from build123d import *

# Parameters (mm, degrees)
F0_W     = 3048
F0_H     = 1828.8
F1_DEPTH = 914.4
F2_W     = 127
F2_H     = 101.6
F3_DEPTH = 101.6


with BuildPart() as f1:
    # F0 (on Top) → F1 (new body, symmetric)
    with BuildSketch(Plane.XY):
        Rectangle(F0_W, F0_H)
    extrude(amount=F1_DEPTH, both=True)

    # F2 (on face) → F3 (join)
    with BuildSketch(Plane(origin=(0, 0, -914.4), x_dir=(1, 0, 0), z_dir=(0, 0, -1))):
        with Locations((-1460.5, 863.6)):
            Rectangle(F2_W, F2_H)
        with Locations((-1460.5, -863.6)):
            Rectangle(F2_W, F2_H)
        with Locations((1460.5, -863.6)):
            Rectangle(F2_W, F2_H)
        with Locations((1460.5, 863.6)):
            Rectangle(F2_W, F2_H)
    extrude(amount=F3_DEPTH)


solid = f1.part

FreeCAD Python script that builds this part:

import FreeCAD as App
import Part
import Sketcher

V = App.Vector
Q = App.Units.Quantity


def add_polygon(sketch, points):
    """Adds a closed chain of lines whose ends are joined by coincident constraints."""
    first, n = sketch.GeometryCount, len(points)
    for a, b in zip(points, points[1:] + points[:1]):
        sketch.addGeometry(Part.LineSegment(App.Vector(*a, 0), App.Vector(*b, 0)), False)
    for i in range(n):
        sketch.addConstraint(Sketcher.Constraint("Coincident", first + i, 2, first + (i + 1) % n, 1))

doc = App.newDocument("Part")
body = doc.addObject("PartDesign::Body", "Body")

# Sketch on XY plane
sketch1 = doc.addObject("Sketcher::SketchObject", "Sketch")
body.addObject(sketch1)
sketch1.AttachmentSupport = (doc.XY_Plane, [""])
sketch1.MapMode = "FlatFace"
add_polygon(sketch1, [(-1524, 914), (-1524, -914), (1524, -914), (1524, 914)])  # lines 0-3
sketch1.addConstraint([
    Sketcher.Constraint("Vertical", 0),
    Sketcher.Constraint("Horizontal", 1),
    Sketcher.Constraint("Vertical", 2),
    Sketcher.Constraint("Horizontal", 3),
    Sketcher.Constraint("Symmetric", 0, 2, 2, 2, -1, 1),
    Sketcher.Constraint("DistanceX", 1, 1, 1, 2, Q("120 in")),
    Sketcher.Constraint("DistanceY", 0, 2, 0, 1, Q("72 in")),
])
pad1 = doc.addObject("PartDesign::Pad", "Pad")
body.addObject(pad1)
pad1.Profile = sketch1
pad1.Length = Q("72 in")
pad1.Midplane = True

# Sketch on XY plane
sketch2 = doc.addObject("Sketcher::SketchObject", "Sketch001")
body.addObject(sketch2)
sketch2.AttachmentSupport = (doc.XY_Plane, [""])
sketch2.MapMode = "FlatFace"
sketch2.AttachmentOffset = App.Placement(V(0, 0, -36 * 25.4), App.Rotation())
add_polygon(sketch2, [(-1524, -914), (-1524, -813), (-1397, -813), (-1397, -914)])  # lines 0-3
add_polygon(sketch2, [(-1524, 813), (-1524, 914), (-1397, 914), (-1397, 813)])  # lines 4-7
add_polygon(sketch2, [(1397, 813), (1397, 914), (1524, 914), (1524, 813)])  # lines 8-11
add_polygon(sketch2, [(1397, -914), (1397, -813), (1524, -813), (1524, -914)])  # lines 12-15
sketch2.addConstraint([
    Sketcher.Constraint("Vertical", 0),
    Sketcher.Constraint("Horizontal", 1),
    Sketcher.Constraint("Vertical", 2),
    Sketcher.Constraint("Horizontal", 3),
    Sketcher.Constraint("Vertical", 4),
    Sketcher.Constraint("Horizontal", 5),
    Sketcher.Constraint("Vertical", 6),
    Sketcher.Constraint("Horizontal", 7),
    Sketcher.Constraint("Vertical", 8),
    Sketcher.Constraint("Horizontal", 9),
    Sketcher.Constraint("Vertical", 10),
    Sketcher.Constraint("Horizontal", 11),
    Sketcher.Constraint("Vertical", 12),
    Sketcher.Constraint("Horizontal", 13),
    Sketcher.Constraint("Vertical", 14),
    Sketcher.Constraint("Horizontal", 15),
    Sketcher.Constraint("Symmetric", 2, 2, 8, 2, -1, 1),
    Sketcher.Constraint("Symmetric", 0, 2, 10, 2, -1, 1),
    Sketcher.Constraint("Symmetric", 6, 2, 12, 2, -1, 1),
    Sketcher.Constraint("Symmetric", 4, 2, 14, 2, -1, 1),
    Sketcher.Constraint("Symmetric", 5, 2, 8, 2, -2),
    Sketcher.Constraint("Symmetric", 7, 2, 10, 2, -2),
    Sketcher.Constraint("DistanceX", 1, 1, 1, 2, Q("5 in")),
    Sketcher.Constraint("DistanceY", 0, 1, 0, 2, Q("4 in")),
    Sketcher.Constraint("DistanceX", 0, 2, -1, 1, Q("60 in")),
    Sketcher.Constraint("DistanceY", 0, 2, -1, 1, Q("32 in")),
])
pad2 = doc.addObject("PartDesign::Pad", "Pad001")
body.addObject(pad2)
pad2.Profile = sketch2
pad2.Length = Q("4 in")
pad2.Reversed = True

doc.recompute()
